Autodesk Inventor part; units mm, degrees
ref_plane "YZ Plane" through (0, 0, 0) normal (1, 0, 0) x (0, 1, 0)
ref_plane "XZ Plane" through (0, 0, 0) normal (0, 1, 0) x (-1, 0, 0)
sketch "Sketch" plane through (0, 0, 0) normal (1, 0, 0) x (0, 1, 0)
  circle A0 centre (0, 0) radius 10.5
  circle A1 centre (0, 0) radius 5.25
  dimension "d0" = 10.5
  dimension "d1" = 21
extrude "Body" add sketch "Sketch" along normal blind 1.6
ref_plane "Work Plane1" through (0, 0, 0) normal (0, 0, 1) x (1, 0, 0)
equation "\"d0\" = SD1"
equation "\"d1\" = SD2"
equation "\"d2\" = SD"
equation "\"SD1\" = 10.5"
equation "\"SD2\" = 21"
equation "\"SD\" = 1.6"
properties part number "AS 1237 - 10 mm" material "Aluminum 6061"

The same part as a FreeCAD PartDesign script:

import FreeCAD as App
import Part
import Sketcher
Q = App.Units.Quantity

doc = App.newDocument("Part")
body = doc.addObject("PartDesign::Body", "Body")

# Sketch on YZ plane
sketch1 = body.newObject("Sketcher::SketchObject", "Sketch")
sketch1.AttachmentSupport = (doc.getObject("YZ_Plane"), [""])
sketch1.MapMode = "FlatFace"
sketch1.addGeometry(Part.Circle(App.Vector(0, 0, 0), App.Vector(0, 0, 1), 10.5), False)
sketch1.addGeometry(Part.Circle(App.Vector(0, 0, 0), App.Vector(0, 0, 1), 5.25), False)
sketch1.addConstraint(Sketcher.Constraint("Coincident", 0, 3, -1, 1))
sketch1.addConstraint(Sketcher.Constraint("Coincident", 1, 3, -1, 1))
sketch1.addConstraint(Sketcher.Constraint("Diameter", 0, Q("21 mm")))
sketch1.addConstraint(Sketcher.Constraint("Diameter", 1, Q("10.5 mm")))
pad1 = body.newObject("PartDesign::Pad", "Pad")
pad1.Profile = sketch1
pad1.Length = 1.6

doc.recompute()
